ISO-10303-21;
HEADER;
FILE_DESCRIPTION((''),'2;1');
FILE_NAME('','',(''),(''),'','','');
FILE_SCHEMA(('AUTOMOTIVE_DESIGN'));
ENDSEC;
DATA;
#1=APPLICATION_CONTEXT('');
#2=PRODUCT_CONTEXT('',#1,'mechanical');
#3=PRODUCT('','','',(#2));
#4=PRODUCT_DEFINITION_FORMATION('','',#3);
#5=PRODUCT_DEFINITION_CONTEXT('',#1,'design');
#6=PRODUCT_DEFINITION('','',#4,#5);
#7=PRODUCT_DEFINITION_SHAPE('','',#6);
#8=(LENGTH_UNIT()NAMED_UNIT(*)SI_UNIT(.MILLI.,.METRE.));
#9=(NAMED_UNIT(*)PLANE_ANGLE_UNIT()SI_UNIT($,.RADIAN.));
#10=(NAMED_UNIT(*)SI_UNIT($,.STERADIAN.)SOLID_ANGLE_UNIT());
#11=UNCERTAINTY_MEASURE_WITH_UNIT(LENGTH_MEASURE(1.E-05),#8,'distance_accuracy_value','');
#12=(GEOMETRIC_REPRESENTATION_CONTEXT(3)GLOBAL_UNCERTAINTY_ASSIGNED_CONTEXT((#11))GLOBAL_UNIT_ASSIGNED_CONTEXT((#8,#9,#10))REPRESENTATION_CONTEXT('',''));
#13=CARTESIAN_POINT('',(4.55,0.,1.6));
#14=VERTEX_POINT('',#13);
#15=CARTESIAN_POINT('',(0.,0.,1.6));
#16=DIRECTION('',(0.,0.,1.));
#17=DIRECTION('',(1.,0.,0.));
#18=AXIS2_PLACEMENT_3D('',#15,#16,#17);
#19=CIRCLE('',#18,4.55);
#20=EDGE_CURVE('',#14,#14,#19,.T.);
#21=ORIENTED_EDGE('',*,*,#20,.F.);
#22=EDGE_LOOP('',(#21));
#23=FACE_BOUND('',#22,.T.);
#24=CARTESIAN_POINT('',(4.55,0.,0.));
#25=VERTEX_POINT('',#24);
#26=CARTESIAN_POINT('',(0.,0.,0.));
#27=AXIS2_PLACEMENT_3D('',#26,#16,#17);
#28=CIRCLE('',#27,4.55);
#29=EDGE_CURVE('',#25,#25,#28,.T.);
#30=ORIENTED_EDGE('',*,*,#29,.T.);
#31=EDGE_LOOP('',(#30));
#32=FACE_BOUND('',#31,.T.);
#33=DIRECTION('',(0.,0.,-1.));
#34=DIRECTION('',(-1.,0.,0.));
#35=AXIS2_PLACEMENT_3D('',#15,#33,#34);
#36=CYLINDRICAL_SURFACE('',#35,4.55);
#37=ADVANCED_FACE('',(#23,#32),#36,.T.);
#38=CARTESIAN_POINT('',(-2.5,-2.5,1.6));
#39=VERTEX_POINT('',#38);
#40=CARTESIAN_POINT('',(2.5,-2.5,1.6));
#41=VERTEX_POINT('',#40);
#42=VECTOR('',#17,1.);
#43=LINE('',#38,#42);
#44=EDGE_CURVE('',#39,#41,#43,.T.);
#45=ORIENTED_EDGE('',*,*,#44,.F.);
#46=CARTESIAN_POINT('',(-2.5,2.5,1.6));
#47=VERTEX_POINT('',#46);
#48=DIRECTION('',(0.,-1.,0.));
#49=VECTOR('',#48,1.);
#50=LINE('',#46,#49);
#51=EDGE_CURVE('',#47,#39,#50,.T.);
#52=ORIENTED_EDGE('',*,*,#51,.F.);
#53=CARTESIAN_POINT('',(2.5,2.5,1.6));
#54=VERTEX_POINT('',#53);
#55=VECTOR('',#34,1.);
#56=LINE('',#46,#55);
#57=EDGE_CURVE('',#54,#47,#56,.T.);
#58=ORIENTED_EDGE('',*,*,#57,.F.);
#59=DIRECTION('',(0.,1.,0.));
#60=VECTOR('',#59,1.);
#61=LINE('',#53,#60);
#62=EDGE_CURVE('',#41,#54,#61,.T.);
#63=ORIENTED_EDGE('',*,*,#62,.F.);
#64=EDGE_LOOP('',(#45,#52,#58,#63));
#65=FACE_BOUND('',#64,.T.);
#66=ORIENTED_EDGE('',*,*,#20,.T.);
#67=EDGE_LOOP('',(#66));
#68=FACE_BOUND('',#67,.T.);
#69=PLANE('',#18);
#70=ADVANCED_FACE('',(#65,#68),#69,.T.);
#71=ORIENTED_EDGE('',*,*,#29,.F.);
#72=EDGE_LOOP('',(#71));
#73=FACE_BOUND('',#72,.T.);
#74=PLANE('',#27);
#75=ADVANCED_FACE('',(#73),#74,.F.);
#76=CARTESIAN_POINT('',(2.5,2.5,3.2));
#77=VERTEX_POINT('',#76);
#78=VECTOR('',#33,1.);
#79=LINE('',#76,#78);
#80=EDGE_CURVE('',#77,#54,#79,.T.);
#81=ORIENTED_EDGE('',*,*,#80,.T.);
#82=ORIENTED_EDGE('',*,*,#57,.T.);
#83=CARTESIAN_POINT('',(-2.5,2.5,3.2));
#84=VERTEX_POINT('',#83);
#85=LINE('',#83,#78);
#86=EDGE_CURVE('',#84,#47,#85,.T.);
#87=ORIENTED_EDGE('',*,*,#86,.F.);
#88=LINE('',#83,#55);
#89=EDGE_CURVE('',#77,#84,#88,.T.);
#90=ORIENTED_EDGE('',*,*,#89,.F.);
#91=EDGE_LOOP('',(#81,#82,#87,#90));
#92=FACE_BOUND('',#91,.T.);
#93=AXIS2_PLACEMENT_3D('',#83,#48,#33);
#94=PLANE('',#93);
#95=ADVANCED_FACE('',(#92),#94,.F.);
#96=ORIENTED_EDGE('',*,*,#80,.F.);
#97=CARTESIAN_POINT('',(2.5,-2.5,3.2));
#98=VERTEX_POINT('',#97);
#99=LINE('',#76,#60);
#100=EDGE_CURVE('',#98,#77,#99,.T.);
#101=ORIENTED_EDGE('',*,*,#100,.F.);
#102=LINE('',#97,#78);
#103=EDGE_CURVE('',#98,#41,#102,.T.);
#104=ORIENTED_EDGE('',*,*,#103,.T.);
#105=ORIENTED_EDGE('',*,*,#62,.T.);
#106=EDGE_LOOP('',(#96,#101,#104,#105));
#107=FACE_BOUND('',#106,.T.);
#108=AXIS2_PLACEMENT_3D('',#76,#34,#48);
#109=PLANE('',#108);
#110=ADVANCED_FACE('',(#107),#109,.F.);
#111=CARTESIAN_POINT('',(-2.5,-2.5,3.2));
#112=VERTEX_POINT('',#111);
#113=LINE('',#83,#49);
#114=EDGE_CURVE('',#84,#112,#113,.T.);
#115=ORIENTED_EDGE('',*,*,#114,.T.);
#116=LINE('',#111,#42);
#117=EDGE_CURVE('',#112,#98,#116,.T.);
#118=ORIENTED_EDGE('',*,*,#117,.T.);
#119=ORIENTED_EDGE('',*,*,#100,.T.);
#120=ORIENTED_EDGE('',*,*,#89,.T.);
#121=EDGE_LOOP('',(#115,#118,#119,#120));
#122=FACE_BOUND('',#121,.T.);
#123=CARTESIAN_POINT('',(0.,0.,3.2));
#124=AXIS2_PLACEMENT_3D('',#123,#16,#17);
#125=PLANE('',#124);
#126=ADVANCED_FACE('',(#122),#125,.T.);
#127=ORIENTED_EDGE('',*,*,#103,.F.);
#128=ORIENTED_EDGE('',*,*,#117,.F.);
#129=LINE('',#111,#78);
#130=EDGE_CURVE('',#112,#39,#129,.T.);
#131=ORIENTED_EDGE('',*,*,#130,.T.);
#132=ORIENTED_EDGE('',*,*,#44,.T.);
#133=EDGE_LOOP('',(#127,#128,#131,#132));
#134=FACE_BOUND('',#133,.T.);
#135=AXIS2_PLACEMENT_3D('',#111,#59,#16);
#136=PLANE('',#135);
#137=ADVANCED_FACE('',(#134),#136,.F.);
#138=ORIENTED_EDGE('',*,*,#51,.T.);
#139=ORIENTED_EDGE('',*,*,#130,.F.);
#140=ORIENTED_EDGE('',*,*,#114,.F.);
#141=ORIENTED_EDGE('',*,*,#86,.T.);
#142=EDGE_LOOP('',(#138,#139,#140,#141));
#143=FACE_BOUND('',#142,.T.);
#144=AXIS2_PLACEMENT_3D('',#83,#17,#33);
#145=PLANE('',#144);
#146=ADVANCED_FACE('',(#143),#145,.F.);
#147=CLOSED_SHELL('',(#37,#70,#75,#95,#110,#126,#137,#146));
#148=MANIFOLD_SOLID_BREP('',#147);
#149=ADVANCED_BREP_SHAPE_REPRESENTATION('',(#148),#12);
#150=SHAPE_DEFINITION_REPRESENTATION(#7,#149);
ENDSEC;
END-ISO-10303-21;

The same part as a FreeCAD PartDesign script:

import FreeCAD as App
import Part
import Sketcher
from FreeCAD import Vector
Q = App.Units.Quantity


def add_polygon(sketch, points):
    """Adds a closed chain of lines whose ends are joined by coincident constraints."""
    first, n = sketch.GeometryCount, len(points)
    for a, b in zip(points, points[1:] + points[:1]):
        sketch.addGeometry(Part.LineSegment(App.Vector(*a, 0), App.Vector(*b, 0)), False)
    for i in range(n):
        sketch.addConstraint(Sketcher.Constraint("Coincident", first + i, 2, first + (i + 1) % n, 1))

doc = App.newDocument("Part")
body = doc.addObject("PartDesign::Body", "Body")

# Sketch on XY plane
sketch1 = doc.addObject("Sketcher::SketchObject", "Sketch")
body.addObject(sketch1)
sketch1.AttachmentSupport = (doc.XY_Plane, [""])
sketch1.MapMode = "FlatFace"
sketch1.addGeometry(Part.Circle(Vector(0, 0, 0), Vector(0, 0, 1), 4.5), False)
sketch1.addConstraint([
    Sketcher.Constraint("Coincident", 0, 3, -1, 1),
    Sketcher.Constraint("Diameter", 0, Q("9.1 mm")),
])
pad1 = doc.addObject("PartDesign::Pad", "Pad")
body.addObject(pad1)
pad1.Profile = sketch1
pad1.Length = 1.6

# Sketch on XY plane
sketch2 = doc.addObject("Sketcher::SketchObject", "Sketch001")
body.addObject(sketch2)
sketch2.AttachmentSupport = (doc.XY_Plane, [""])
sketch2.MapMode = "FlatFace"
sketch2.AttachmentOffset = App.Placement(Vector(0, 0, 1.6), App.Rotation())
add_polygon(sketch2, [(-2, 2), (-2, -2), (2, -2), (2, 2)])  # lines 0-3
sketch2.addConstraint([
    Sketcher.Constraint("Vertical", 0),
    Sketcher.Constraint("Horizontal", 1),
    Sketcher.Constraint("Vertical", 2),
    Sketcher.Constraint("Horizontal", 3),
    Sketcher.Constraint("Symmetric", 0, 2, 2, 2, -1, 1),
    Sketcher.Constraint("Equal", 3, 0),
    Sketcher.Constraint("DistanceX", 1, 1, 1, 2, Q("5 mm")),
])
pad2 = doc.addObject("PartDesign::Pad", "Pad001")
body.addObject(pad2)
pad2.Profile = sketch2
pad2.Length = 1.6

doc.recompute()
